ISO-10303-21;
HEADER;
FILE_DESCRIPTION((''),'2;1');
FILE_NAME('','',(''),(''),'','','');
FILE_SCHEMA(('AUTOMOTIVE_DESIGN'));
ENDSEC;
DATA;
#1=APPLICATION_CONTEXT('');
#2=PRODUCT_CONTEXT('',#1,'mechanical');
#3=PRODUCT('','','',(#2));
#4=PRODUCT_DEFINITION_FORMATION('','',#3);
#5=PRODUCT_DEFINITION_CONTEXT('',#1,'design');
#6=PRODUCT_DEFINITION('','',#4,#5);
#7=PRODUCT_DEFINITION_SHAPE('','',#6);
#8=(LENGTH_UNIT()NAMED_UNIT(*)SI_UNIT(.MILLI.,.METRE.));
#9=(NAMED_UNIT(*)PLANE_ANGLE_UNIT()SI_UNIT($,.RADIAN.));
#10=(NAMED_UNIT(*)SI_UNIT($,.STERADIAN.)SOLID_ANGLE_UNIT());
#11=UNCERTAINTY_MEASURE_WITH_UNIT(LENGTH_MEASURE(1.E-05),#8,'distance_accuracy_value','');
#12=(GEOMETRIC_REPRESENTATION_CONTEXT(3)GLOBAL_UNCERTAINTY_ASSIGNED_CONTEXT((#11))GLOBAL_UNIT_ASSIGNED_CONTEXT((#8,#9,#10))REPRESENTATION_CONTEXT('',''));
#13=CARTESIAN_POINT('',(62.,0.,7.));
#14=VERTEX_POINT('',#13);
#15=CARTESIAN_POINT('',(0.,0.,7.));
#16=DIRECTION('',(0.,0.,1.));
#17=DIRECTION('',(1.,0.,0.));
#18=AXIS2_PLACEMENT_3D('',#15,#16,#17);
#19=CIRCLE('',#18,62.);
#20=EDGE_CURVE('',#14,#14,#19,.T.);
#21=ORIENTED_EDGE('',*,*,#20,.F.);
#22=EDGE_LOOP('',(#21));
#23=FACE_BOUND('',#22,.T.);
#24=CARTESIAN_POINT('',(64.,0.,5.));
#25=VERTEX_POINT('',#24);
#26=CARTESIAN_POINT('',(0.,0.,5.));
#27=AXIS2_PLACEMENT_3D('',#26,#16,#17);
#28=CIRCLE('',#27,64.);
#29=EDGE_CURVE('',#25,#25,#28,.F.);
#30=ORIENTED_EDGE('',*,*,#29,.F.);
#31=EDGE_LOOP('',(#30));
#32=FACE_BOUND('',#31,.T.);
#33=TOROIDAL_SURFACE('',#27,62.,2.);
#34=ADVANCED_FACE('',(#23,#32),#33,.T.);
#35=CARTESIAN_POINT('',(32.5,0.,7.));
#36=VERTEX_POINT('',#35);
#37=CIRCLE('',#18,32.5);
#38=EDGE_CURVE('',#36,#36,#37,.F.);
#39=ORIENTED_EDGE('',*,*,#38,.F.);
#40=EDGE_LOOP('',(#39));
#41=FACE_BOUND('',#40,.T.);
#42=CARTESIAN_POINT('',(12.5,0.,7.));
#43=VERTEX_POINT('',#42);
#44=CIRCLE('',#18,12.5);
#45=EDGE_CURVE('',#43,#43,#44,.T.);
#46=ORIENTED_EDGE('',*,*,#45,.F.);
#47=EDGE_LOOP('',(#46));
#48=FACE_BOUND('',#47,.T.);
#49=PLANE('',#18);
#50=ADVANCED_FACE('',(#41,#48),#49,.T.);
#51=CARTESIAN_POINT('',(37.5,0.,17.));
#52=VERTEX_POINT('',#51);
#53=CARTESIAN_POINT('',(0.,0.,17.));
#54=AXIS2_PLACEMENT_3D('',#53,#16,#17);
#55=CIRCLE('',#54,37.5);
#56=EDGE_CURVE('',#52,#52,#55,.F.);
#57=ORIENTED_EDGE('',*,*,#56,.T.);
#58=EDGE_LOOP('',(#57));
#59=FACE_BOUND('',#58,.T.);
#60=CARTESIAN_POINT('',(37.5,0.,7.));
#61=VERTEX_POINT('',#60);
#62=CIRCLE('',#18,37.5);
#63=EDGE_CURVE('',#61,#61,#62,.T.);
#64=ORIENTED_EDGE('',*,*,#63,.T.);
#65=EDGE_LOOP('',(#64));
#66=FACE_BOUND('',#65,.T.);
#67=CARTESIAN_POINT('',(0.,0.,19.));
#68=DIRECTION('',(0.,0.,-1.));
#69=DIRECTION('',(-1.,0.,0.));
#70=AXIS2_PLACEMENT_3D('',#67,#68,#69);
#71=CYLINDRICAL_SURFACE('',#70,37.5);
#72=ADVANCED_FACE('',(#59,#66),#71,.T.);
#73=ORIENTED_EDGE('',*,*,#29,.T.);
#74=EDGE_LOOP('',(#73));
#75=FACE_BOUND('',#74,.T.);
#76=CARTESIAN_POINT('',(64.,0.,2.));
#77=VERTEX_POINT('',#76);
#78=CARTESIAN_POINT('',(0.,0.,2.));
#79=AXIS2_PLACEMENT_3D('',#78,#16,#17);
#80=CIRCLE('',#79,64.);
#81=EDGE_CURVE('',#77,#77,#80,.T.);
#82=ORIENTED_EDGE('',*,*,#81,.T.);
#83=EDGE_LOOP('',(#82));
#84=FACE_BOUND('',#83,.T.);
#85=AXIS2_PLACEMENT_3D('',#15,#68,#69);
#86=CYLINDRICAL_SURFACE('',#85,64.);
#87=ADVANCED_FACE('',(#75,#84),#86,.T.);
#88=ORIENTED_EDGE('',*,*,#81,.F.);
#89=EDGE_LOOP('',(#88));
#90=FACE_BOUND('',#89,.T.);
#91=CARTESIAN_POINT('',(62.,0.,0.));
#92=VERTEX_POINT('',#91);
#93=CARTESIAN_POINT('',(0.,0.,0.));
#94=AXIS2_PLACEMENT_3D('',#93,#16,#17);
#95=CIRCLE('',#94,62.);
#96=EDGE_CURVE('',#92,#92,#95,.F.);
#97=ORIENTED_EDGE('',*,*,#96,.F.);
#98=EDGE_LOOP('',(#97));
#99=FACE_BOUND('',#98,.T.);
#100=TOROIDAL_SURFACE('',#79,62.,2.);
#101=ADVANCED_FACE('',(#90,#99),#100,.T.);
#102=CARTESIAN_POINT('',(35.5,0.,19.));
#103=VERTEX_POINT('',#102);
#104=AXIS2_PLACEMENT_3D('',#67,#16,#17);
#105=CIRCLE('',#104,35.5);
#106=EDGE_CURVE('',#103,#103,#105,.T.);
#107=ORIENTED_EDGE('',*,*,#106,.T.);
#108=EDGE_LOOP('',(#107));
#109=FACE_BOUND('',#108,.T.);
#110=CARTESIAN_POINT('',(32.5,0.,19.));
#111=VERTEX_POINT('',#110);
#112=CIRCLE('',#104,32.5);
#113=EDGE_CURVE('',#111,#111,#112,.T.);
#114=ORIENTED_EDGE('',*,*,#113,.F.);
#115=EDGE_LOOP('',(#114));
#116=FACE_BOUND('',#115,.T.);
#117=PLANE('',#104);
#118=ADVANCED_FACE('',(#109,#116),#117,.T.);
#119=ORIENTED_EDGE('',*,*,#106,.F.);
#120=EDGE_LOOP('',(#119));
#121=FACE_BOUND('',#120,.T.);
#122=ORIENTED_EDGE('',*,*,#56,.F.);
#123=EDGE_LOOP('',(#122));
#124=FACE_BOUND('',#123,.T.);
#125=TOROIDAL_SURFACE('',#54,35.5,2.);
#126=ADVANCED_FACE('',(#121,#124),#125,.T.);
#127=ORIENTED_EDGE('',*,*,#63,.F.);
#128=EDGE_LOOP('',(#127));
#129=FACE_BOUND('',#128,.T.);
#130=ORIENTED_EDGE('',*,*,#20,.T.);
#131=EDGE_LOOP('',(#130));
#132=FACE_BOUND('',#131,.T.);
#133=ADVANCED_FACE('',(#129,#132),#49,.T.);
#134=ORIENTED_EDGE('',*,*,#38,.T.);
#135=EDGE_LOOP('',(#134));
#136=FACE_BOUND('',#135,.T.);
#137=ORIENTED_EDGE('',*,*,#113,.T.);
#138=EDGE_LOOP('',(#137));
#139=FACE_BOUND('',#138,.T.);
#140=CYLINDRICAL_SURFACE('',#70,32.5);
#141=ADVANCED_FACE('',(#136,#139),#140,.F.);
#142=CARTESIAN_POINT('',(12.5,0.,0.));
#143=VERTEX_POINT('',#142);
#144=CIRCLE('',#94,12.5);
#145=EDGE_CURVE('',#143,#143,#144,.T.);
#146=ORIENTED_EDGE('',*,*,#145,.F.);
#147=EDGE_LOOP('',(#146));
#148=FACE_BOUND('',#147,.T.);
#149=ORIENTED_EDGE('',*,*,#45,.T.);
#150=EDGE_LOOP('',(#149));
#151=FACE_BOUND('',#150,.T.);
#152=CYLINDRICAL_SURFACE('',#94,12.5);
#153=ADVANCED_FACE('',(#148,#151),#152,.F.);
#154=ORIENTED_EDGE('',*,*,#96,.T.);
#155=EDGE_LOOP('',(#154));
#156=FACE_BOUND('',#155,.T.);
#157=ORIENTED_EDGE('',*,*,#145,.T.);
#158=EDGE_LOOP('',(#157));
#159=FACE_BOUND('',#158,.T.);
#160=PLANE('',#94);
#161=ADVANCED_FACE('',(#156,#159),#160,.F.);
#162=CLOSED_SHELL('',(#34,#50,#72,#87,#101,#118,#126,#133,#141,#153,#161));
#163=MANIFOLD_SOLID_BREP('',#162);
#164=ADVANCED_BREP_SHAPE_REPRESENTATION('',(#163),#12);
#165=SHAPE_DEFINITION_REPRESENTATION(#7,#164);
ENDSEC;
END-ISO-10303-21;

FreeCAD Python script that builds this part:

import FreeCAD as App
import Part
import Sketcher
from FreeCAD import Vector


def edges_at(feature, points):
    """Names of the edges that pass closest to the given points."""
    edges = feature.Shape.Edges
    near = lambda p: min(range(len(edges)), key=lambda i: edges[i].distToShape(Part.Vertex(*p))[0])
    return sorted({f"Edge{near(p) + 1}" for p in points})

doc = App.newDocument("Part")
params = doc.addObject("Spreadsheet::Sheet", "Params")
for row, (alias, value) in enumerate([
    ("sketch1_diameter", "128 mm"),
    ("pad1_length", "7 mm"),
    ("sketch2_diameter", "75 mm"),
    ("sketch2_diameter2", "65 mm"),
    ("pad2_length", "12 mm"),
    ("sketch3_diameter", "25 mm"),
    ("fillet_radius", "2 mm"),
], start=1):
    params.set(f"A{row}", alias)
    params.set(f"B{row}", "=" + value)
    params.setAlias(f"B{row}", alias)

body = doc.addObject("PartDesign::Body", "Body")

sketch1 = doc.addObject("Sketcher::SketchObject", "Sketch")
body.addObject(sketch1)
sketch1.AttachmentSupport = (doc.XY_Plane, [""])
sketch1.MapMode = "FlatFace"
sketch1.addGeometry(Part.Circle(Vector(0, 0, 0), Vector(0, 0, 1), 64), False)
sketch1.addConstraint(Sketcher.Constraint("Coincident", 0, 3, -1, 1))
sketch1.addConstraint(Sketcher.Constraint("Diameter", 0, 128.0))
sketch1.setExpression("Constraints[1]", "Params.sketch1_diameter")
pad1 = doc.addObject("PartDesign::Pad", "Pad")
body.addObject(pad1)
pad1.Profile = sketch1
pad1.setExpression("Length", "Params.pad1_length")

sketch2 = doc.addObject("Sketcher::SketchObject", "Sketch001")
body.addObject(sketch2)
sketch2.AttachmentSupport = (doc.XY_Plane, [""])
sketch2.MapMode = "FlatFace"
sketch2.AttachmentOffset = App.Placement(Vector(0, 0, 7), App.Rotation())
sketch2.addGeometry(Part.Circle(Vector(0, 0, 0), Vector(0, 0, 1), 38), False)
sketch2.addGeometry(Part.Circle(Vector(0, 0, 0), Vector(0, 0, 1), 32), False)
sketch2.addConstraint(Sketcher.Constraint("Coincident", 0, 3, -1, 1))
sketch2.addConstraint(Sketcher.Constraint("Coincident", 1, 3, -1, 1))
sketch2.addConstraint(Sketcher.Constraint("Diameter", 0, 75.0))
sketch2.addConstraint(Sketcher.Constraint("Diameter", 1, 65.0))
sketch2.setExpression("Constraints[2]", "Params.sketch2_diameter")
sketch2.setExpression("Constraints[3]", "Params.sketch2_diameter2")
pad2 = doc.addObject("PartDesign::Pad", "Pad001")
body.addObject(pad2)
pad2.Profile = sketch2
pad2.setExpression("Length", "Params.pad2_length")

sketch3 = doc.addObject("Sketcher::SketchObject", "Sketch002")
body.addObject(sketch3)
sketch3.AttachmentSupport = (doc.XY_Plane, [""])
sketch3.MapMode = "FlatFace"
sketch3.AttachmentOffset = App.Placement(Vector(0, 0, 7), App.Rotation())
sketch3.addGeometry(Part.Circle(Vector(0, 0, 0), Vector(0, 0, 1), 12), False)
sketch3.addConstraint(Sketcher.Constraint("Coincident", 0, 3, -1, 1))
sketch3.addConstraint(Sketcher.Constraint("Diameter", 0, 25.0))
sketch3.setExpression("Constraints[1]", "Params.sketch3_diameter")
pocket1 = doc.addObject("PartDesign::Pocket", "Pocket")
body.addObject(pocket1)
pocket1.Profile = sketch3
pocket1.Type = "ThroughAll"
doc.recompute()

fillet = doc.addObject("PartDesign::Fillet", "Fillet")
body.addObject(fillet)
fillet.Base = (pocket1, edges_at(pocket1, [(-64, 0, 0), (-64, 0, 7), (-37.5, 0, 19)]))
fillet.setExpression("Radius", "Params.fillet_radius")

doc.recompute()
